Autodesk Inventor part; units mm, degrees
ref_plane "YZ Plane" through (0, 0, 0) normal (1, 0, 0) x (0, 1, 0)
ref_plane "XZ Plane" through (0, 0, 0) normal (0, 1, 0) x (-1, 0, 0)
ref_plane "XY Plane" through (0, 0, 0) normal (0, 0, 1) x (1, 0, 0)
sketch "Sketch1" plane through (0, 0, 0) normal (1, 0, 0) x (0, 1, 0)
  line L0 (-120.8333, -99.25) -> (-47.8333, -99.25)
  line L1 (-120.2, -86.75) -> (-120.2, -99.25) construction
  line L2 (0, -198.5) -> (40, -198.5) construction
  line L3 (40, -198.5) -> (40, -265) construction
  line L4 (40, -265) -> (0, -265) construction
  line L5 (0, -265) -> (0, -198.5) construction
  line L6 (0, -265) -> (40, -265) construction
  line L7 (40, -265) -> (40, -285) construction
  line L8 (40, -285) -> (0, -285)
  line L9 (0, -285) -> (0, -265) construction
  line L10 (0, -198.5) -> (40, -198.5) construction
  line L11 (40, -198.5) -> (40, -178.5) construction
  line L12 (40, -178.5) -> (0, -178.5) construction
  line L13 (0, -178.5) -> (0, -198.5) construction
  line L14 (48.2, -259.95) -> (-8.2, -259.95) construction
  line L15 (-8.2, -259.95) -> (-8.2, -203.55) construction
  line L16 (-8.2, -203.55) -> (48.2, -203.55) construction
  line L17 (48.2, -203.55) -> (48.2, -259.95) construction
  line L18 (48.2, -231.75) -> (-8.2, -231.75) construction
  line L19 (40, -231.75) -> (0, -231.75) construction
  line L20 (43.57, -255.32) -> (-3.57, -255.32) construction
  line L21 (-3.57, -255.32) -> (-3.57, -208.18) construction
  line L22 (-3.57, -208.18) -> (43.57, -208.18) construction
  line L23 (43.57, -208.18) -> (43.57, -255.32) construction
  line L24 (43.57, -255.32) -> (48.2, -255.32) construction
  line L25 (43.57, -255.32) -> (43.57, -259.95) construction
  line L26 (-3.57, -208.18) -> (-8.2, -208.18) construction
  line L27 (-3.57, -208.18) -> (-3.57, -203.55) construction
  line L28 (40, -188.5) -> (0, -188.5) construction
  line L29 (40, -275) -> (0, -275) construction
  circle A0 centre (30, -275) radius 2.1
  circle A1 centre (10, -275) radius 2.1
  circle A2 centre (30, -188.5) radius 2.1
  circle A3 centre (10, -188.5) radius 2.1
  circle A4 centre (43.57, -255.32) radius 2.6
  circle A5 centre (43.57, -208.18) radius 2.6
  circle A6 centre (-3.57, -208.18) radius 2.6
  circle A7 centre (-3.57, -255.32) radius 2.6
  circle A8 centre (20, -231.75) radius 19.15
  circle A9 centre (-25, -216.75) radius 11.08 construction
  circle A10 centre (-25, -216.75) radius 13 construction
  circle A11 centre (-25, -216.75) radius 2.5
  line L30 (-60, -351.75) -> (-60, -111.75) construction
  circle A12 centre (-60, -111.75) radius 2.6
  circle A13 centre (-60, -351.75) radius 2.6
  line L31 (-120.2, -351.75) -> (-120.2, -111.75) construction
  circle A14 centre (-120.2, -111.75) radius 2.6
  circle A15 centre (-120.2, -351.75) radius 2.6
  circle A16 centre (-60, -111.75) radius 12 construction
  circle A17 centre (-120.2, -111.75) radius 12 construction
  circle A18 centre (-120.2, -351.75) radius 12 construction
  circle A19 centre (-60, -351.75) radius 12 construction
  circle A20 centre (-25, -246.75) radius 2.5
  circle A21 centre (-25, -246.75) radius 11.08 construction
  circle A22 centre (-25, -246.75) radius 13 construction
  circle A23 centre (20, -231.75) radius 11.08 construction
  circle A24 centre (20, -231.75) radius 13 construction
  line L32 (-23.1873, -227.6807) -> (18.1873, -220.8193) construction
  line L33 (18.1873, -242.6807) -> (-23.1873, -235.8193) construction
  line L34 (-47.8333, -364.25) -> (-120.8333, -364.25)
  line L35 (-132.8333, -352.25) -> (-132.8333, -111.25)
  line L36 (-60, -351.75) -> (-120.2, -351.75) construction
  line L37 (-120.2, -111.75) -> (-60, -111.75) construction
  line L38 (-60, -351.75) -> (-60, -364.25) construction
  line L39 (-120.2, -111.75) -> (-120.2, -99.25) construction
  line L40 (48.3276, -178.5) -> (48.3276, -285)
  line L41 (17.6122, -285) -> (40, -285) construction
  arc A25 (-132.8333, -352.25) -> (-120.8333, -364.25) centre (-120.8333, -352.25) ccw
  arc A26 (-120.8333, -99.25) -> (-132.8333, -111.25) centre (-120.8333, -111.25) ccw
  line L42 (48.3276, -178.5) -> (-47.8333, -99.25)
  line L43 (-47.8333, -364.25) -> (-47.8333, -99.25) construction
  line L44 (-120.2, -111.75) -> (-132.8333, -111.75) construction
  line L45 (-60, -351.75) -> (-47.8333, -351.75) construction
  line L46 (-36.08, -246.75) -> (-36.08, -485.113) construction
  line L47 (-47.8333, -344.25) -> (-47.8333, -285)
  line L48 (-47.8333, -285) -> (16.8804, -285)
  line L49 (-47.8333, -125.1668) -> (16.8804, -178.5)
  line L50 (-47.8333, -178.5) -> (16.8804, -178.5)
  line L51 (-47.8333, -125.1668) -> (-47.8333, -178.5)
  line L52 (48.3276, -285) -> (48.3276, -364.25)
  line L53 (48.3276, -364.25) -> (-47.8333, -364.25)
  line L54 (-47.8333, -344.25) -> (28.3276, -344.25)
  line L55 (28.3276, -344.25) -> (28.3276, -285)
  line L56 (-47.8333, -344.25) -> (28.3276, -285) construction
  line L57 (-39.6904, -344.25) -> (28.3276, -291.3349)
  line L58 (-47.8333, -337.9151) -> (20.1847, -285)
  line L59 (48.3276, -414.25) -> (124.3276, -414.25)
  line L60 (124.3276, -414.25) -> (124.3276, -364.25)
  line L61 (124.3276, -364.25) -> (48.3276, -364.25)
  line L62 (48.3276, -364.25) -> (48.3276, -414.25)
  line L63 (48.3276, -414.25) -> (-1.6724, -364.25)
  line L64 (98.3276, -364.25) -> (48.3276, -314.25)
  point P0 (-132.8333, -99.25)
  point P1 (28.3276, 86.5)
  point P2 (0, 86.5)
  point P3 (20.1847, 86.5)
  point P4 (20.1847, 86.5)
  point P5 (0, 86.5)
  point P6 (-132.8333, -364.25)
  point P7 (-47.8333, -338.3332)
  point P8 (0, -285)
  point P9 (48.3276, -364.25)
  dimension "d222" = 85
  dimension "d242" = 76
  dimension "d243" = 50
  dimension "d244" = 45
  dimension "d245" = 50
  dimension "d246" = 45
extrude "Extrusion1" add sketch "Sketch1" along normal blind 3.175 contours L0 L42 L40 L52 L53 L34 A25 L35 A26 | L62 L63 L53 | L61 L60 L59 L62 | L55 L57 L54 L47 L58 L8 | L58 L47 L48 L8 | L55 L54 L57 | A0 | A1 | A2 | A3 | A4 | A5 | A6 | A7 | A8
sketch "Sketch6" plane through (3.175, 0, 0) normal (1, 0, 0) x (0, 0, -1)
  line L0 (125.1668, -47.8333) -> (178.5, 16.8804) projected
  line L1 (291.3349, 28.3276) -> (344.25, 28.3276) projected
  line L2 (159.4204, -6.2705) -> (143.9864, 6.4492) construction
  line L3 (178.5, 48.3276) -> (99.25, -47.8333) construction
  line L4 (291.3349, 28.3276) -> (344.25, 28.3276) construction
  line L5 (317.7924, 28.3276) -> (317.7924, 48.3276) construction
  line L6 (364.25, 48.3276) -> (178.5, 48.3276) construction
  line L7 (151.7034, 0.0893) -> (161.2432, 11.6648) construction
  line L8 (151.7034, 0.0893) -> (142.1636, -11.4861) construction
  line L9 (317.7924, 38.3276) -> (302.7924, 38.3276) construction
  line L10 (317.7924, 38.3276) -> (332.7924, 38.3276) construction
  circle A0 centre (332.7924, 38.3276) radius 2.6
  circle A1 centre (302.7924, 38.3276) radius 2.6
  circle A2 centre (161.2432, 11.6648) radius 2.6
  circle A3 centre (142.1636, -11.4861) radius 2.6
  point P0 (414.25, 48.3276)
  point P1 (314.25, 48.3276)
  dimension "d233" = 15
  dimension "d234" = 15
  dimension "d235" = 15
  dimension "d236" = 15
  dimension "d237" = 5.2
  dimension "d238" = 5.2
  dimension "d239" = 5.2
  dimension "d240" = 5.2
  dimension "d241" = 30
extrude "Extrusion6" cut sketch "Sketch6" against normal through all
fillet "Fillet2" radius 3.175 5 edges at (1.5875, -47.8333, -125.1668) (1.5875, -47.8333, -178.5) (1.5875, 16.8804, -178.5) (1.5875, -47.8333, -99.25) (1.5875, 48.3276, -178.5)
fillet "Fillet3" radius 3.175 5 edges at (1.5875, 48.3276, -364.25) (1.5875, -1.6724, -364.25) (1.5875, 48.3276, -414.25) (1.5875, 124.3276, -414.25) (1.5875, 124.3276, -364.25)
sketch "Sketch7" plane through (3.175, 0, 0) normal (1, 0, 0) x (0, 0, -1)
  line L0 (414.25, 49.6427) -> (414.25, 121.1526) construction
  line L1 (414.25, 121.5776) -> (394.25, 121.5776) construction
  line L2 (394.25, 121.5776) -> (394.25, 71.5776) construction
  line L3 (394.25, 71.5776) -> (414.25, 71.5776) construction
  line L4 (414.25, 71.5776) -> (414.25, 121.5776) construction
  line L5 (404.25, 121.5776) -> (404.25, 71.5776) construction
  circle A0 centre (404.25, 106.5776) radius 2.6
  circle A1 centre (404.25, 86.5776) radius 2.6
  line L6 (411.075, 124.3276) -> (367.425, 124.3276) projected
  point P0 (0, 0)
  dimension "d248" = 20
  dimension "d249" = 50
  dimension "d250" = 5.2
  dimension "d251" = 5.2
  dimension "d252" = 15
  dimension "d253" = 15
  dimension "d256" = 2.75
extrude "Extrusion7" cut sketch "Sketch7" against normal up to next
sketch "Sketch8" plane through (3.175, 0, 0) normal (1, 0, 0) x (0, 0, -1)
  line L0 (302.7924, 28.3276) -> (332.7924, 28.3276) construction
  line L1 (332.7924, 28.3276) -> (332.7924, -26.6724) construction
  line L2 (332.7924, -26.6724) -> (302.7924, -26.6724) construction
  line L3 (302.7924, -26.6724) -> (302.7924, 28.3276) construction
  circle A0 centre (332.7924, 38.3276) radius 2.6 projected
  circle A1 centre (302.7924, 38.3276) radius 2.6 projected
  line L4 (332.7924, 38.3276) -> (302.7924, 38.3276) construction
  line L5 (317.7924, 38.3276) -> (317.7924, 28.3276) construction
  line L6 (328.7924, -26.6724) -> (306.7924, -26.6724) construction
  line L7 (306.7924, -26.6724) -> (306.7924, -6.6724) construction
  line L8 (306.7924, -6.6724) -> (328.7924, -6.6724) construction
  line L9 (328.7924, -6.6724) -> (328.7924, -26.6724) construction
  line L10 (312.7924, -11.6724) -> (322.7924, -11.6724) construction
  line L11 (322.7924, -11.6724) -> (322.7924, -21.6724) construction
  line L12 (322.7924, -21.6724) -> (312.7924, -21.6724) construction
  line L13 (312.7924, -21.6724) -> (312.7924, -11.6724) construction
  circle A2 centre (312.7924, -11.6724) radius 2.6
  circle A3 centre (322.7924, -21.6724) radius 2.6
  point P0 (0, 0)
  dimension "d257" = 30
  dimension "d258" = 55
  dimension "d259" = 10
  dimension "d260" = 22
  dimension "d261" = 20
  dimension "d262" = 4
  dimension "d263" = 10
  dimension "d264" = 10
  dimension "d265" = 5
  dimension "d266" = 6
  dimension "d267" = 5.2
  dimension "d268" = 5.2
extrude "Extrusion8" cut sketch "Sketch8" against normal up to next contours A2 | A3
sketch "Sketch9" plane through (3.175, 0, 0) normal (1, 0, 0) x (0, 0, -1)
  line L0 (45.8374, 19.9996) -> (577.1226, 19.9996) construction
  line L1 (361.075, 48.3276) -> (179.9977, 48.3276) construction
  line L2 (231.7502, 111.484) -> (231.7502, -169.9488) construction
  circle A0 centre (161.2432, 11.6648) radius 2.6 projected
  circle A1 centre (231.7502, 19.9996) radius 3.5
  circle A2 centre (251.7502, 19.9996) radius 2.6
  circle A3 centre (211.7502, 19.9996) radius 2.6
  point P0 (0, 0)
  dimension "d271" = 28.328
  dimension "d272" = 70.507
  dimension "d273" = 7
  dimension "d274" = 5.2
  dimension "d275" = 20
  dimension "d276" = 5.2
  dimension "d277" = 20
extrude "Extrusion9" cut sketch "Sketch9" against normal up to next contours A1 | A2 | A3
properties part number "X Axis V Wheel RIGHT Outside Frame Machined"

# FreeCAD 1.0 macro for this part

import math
import FreeCAD as App
import Part
import Sketcher

V = App.Vector
Q = App.Units.Quantity


def edges_at(feature, points):
    """Names of the edges that pass closest to the given points."""
    edges = feature.Shape.Edges
    near = lambda p: min(range(len(edges)), key=lambda i: edges[i].distToShape(Part.Vertex(*p))[0])
    return sorted({f"Edge{near(p) + 1}" for p in points})

doc = App.newDocument("Part")
params = doc.addObject("Spreadsheet::Sheet", "Params")
for row, (alias, value) in enumerate([
    ("sketch1_width", "76 mm"),
    ("sketch1_height", "50 mm"),
    ("sketch1_diameter", "5 mm"),
    ("sketch1_radius", "12 mm"),
    ("sketch1_diameter2", "5.2 mm"),
    ("pad1_length", "3.175 mm"),
    ("sketch2_diameter", "5.2 mm"),
    ("fillet_radius", "3.175 mm"),
    ("fillet2_radius", "3.175 mm"),
    ("sketch3_diameter", "5.2 mm"),
    ("sketch4_diameter", "5.2 mm"),
    ("sketch5_diameter", "7 mm"),
    ("sketch5_diameter2", "5.2 mm"),
], start=1):
    params.set(f"A{row}", alias)
    params.set(f"B{row}", "=" + value)
    params.setAlias(f"B{row}", alias)

body = doc.addObject("PartDesign::Body", "Body")

# Sketch on YZ plane
sketch1 = body.newObject("Sketcher::SketchObject", "Sketch")
sketch1.AttachmentSupport = (doc.getObject("YZ_Plane"), [""])
sketch1.MapMode = "FlatFace"
sketch1.addGeometry(Part.LineSegment(V(-47.8333, -99.25, 0), V(-120.8333, -99.25, 0)), False)
sketch1.addGeometry(Part.ArcOfCircle(Part.Circle(V(-120.8333, -111.25, 0), V(0, 0, 1), 12), math.radians(90), math.radians(180)), False)
sketch1.addGeometry(Part.LineSegment(V(-132.8333, -111.25, 0), V(-132.8333, -352.25, 0)), False)
sketch1.addGeometry(Part.ArcOfCircle(Part.Circle(V(-120.8333, -352.25, 0), V(0, 0, 1), 12), math.radians(180), math.radians(270)), False)
sketch1.addGeometry(Part.LineSegment(V(-120.8333, -364.25, 0), V(-1.6724, -364.25, 0)), False)
sketch1.addGeometry(Part.LineSegment(V(-1.6724, -364.25, 0), V(48.3276, -414.25, 0)), False)
sketch1.addGeometry(Part.LineSegment(V(48.3276, -414.25, 0), V(124.3276, -414.25, 0)), False)
sketch1.addGeometry(Part.LineSegment(V(124.3276, -414.25, 0), V(124.3276, -364.25, 0)), False)
sketch1.addGeometry(Part.LineSegment(V(124.3276, -364.25, 0), V(48.3276, -364.25, 0)), False)
sketch1.addGeometry(Part.LineSegment(V(48.3276, -364.25, 0), V(48.3276, -178.5, 0)), False)
sketch1.addGeometry(Part.LineSegment(V(48.3276, -178.5, 0), V(-47.8333, -99.25, 0)), False)
sketch1.addGeometry(Part.Circle(V(-120.2, -351.75, 0), V(0, 0, 1), 2.6), False)
sketch1.addGeometry(Part.Circle(V(-60, -351.75, 0), V(0, 0, 1), 2.6), False)
sketch1.addGeometry(Part.Circle(V(-25, -246.75, 0), V(0, 0, 1), 2.5), False)
sketch1.addGeometry(Part.Circle(V(-25, -216.75, 0), V(0, 0, 1), 2.5), False)
sketch1.addGeometry(Part.Circle(V(-120.2, -111.75, 0), V(0, 0, 1), 2.6), False)
sketch1.addGeometry(Part.LineSegment(V(-47.8333, -178.5, 0), V(-47.8333, -125.1668, 0)), False)
sketch1.addGeometry(Part.LineSegment(V(-47.8333, -125.1668, 0), V(16.8804, -178.5, 0)), False)
sketch1.addGeometry(Part.LineSegment(V(16.8804, -178.5, 0), V(-47.8333, -178.5, 0)), False)
sketch1.addGeometry(Part.Circle(V(-60, -111.75, 0), V(0, 0, 1), 2.6), False)
sketch1.addConstraint(Sketcher.Constraint("Tangent", 0, 2, 1, 1))
sketch1.addConstraint(Sketcher.Constraint("Tangent", 1, 2, 2, 1))
sketch1.addConstraint(Sketcher.Constraint("Tangent", 2, 2, 3, 1))
sketch1.addConstraint(Sketcher.Constraint("Tangent", 3, 2, 4, 1))
sketch1.addConstraint(Sketcher.Constraint("Coincident", 4, 2, 5, 1))
sketch1.addConstraint(Sketcher.Constraint("Coincident", 5, 2, 6, 1))
sketch1.addConstraint(Sketcher.Constraint("Coincident", 6, 2, 7, 1))
sketch1.addConstraint(Sketcher.Constraint("Coincident", 7, 2, 8, 1))
sketch1.addConstraint(Sketcher.Constraint("Coincident", 8, 2, 9, 1))
sketch1.addConstraint(Sketcher.Constraint("Coincident", 9, 2, 10, 1))
sketch1.addConstraint(Sketcher.Constraint("Coincident", 10, 2, 0, 1))
sketch1.addConstraint(Sketcher.Constraint("Coincident", 16, 2, 17, 1))
sketch1.addConstraint(Sketcher.Constraint("Coincident", 17, 2, 18, 1))
sketch1.addConstraint(Sketcher.Constraint("Coincident", 18, 2, 16, 1))
sketch1.addConstraint(Sketcher.Constraint("Horizontal", 0))
sketch1.addConstraint(Sketcher.Constraint("Vertical", 2))
sketch1.addConstraint(Sketcher.Constraint("Horizontal", 4))
sketch1.addConstraint(Sketcher.Constraint("Horizontal", 6))
sketch1.addConstraint(Sketcher.Constraint("Vertical", 7))
sketch1.addConstraint(Sketcher.Constraint("Horizontal", 8))
sketch1.addConstraint(Sketcher.Constraint("Vertical", 9))
sketch1.addConstraint(Sketcher.Constraint("Vertical", 16))
sketch1.addConstraint(Sketcher.Constraint("Horizontal", 18))
sketch1.addConstraint(Sketcher.Constraint("Equal", 1, 3))
sketch1.addConstraint(Sketcher.Constraint("Equal", 11, 12))
sketch1.addConstraint(Sketcher.Constraint("Equal", 13, 14))
sketch1.addConstraint(Sketcher.Constraint("Equal", 12, 15))
sketch1.addConstraint(Sketcher.Constraint("Equal", 15, 19))
sketch1.addConstraint(Sketcher.Constraint("Parallel", 10, 17))
sketch1.addConstraint(Sketcher.Constraint("Horizontal", 11, 3, 12, 3))
sketch1.addConstraint(Sketcher.Constraint("Horizontal", 15, 3, 19, 3))
sketch1.addConstraint(Sketcher.Constraint("Horizontal", 4, 2, 7, 2))
sketch1.addConstraint(Sketcher.Constraint("Horizontal", 9, 2, 17, 2))
sketch1.addConstraint(Sketcher.Constraint("Vertical", 13, 3, 14, 3))
sketch1.addConstraint(Sketcher.Constraint("Vertical", 11, 3, 15, 3))
sketch1.addConstraint(Sketcher.Constraint("Vertical", 12, 3, 19, 3))
sketch1.addConstraint(Sketcher.Constraint("Vertical", 5, 2, 8, 2))
sketch1.addConstraint(Sketcher.Constraint("Vertical", 10, 2, 16, 2))
sketch1.addConstraint(Sketcher.Constraint("DistanceX", 6, 1, 6, 2, 76.0))
sketch1.addConstraint(Sketcher.Constraint("DistanceY", 7, 1, 7, 2, 50.0))
sketch1.addConstraint(Sketcher.Constraint("Angle", 5, Q("-45 deg")))
sketch1.addConstraint(Sketcher.Constraint("Diameter", 13, 5.0))
sketch1.addConstraint(Sketcher.Constraint("Radius", 1, 12.0))
sketch1.addConstraint(Sketcher.Constraint("DistanceX", 1, 2, 10, 2, 85.0))
sketch1.addConstraint(Sketcher.Constraint("Diameter", 11, 5.2))
sketch1.addConstraint(Sketcher.Constraint("DistanceY", 2, 2, 2, 1, 241.0))
sketch1.addConstraint(Sketcher.Constraint("DistanceX", 12, 3, -1, 1, 60.0))
sketch1.addConstraint(Sketcher.Constraint("DistanceX", 13, 3, -1, 1, 25.0))
sketch1.addConstraint(Sketcher.Constraint("DistanceY", 12, 3, 13, 3, 105.0))
sketch1.addConstraint(Sketcher.Constraint("DistanceY", 13, 3, 14, 3, 30.0))
sketch1.addConstraint(Sketcher.Constraint("DistanceY", 14, 3, 15, 3, 105.0))
sketch1.addConstraint(Sketcher.Constraint("DistanceY", 9, 1, 9, 2, 185.75))
sketch1.addConstraint(Sketcher.Constraint("DistanceX", 11, 3, -1, 1, 120.2))
sketch1.addConstraint(Sketcher.Constraint("DistanceY", 9, 2, -1, 1, 178.5))
sketch1.addConstraint(Sketcher.Constraint("DistanceY", 3, 3, 11, 3, 0.5))
sketch1.addConstraint(Sketcher.Constraint("DistanceX", 4, 1, 4, 2, 119.161))
sketch1.addConstraint(Sketcher.Constraint("DistanceX", 18, 2, 18, 1, 64.7137))
sketch1.addConstraint(Sketcher.Constraint("DistanceX", 1, 3, -1, 1, 120.8333))
sketch1.setExpression("Constraints[38]", "Params.sketch1_width")
sketch1.setExpression("Constraints[39]", "Params.sketch1_height")
sketch1.setExpression("Constraints[41]", "Params.sketch1_diameter")
sketch1.setExpression("Constraints[42]", "Params.sketch1_radius")
sketch1.setExpression("Constraints[44]", "Params.sketch1_diameter2")
pad1 = body.newObject("PartDesign::Pad", "Pad")
pad1.Profile = sketch1
pad1.setExpression("Length", "Params.pad1_length")

# Sketch on YZ plane
sketch2 = body.newObject("Sketcher::SketchObject", "Sketch001")
sketch2.AttachmentSupport = (doc.getObject("YZ_Plane"), [""])
sketch2.MapMode = "FlatFace"
sketch2.AttachmentOffset = App.Placement(V(0, 0, 3.175), App.Rotation())
sketch2.addGeometry(Part.Circle(V(38.3276, -332.7924, 0), V(0, 0, 1), 2.6), False)
sketch2.addGeometry(Part.Circle(V(38.3276, -302.7924, 0), V(0, 0, 1), 2.6), False)
sketch2.addGeometry(Part.Circle(V(11.6648, -161.2432, 0), V(0, 0, 1), 2.6), False)
sketch2.addGeometry(Part.Circle(V(-11.4861, -142.1636, 0), V(0, 0, 1), 2.6), False)
sketch2.addConstraint(Sketcher.Constraint("Equal", 0, 1))
sketch2.addConstraint(Sketcher.Constraint("Equal", 1, 2))
sketch2.addConstraint(Sketcher.Constraint("Equal", 2, 3))
sketch2.addConstraint(Sketcher.Constraint("Vertical", 0, 3, 1, 3))
sketch2.addConstraint(Sketcher.Constraint("Diameter", 0, 5.2))
sketch2.addConstraint(Sketcher.Constraint("DistanceY", 0, 3, 1, 3, 30.0))
sketch2.addConstraint(Sketcher.Constraint("DistanceX", 3, 3, -1, 1, 11.486))
sketch2.addConstraint(Sketcher.Constraint("DistanceX", 3, 3, 2, 3, 23.151))
sketch2.addConstraint(Sketcher.Constraint("DistanceX", -1, 1, 0, 3, 38.3276))
sketch2.addConstraint(Sketcher.Constraint("DistanceY", 0, 3, -1, 1, 332.7924))
sketch2.addConstraint(Sketcher.Constraint("DistanceY", 2, 3, -1, 1, 161.2432))
sketch2.addConstraint(Sketcher.Constraint("DistanceY", 3, 3, -1, 1, 142.1636))
sketch2.setExpression("Constraints[4]", "Params.sketch2_diameter")
pocket1 = body.newObject("PartDesign::Pocket", "Pocket")
pocket1.Profile = sketch2
pocket1.Type = "ThroughAll"
doc.recompute()

fillet = body.newObject("PartDesign::Fillet", "Fillet")
fillet.Base = (pocket1, edges_at(pocket1, [
    (1.587, -47.833, -125.167),
    (1.587, -47.833, -178.5),
    (1.587, 16.88, -178.5),
    (1.587, -47.833, -99.25),
    (1.587, 48.328, -178.5),
]))
fillet.setExpression("Radius", "Params.fillet_radius")
doc.recompute()

fillet2 = body.newObject("PartDesign::Fillet", "Fillet001")
fillet2.Base = (fillet, edges_at(fillet, [
    (1.587, 48.328, -364.25),
    (1.587, -1.672, -364.25),
    (1.587, 48.328, -414.25),
    (1.587, 124.328, -414.25),
    (1.587, 124.328, -364.25),
]))
fillet2.setExpression("Radius", "Params.fillet2_radius")

# Sketch on YZ plane
sketch3 = body.newObject("Sketcher::SketchObject", "Sketch002")
sketch3.AttachmentSupport = (doc.getObject("YZ_Plane"), [""])
sketch3.MapMode = "FlatFace"
sketch3.AttachmentOffset = App.Placement(V(0, 0, 3.175), App.Rotation())
sketch3.addGeometry(Part.Circle(V(106.5776, -404.25, 0), V(0, 0, 1), 2.6), False)
sketch3.addGeometry(Part.Circle(V(86.5776, -404.25, 0), V(0, 0, 1), 2.6), False)
sketch3.addConstraint(Sketcher.Constraint("Equal", 0, 1))
sketch3.addConstraint(Sketcher.Constraint("Horizontal", 0, 3, 1, 3))
sketch3.addConstraint(Sketcher.Constraint("Diameter", 0, 5.2))
sketch3.addConstraint(Sketcher.Constraint("DistanceX", 1, 3, 0, 3, 20.0))
sketch3.addConstraint(Sketcher.Constraint("DistanceY", 0, 3, -1, 1, 404.25))
sketch3.addConstraint(Sketcher.Constraint("DistanceX", -1, 1, 0, 3, 106.5776))
sketch3.setExpression("Constraints[2]", "Params.sketch3_diameter")
pocket2 = body.newObject("PartDesign::Pocket", "Pocket001")
pocket2.Profile = sketch3
pocket2.Type = "UpToFirst"

# Sketch on YZ plane
sketch4 = body.newObject("Sketcher::SketchObject", "Sketch003")
sketch4.AttachmentSupport = (doc.getObject("YZ_Plane"), [""])
sketch4.MapMode = "FlatFace"
sketch4.AttachmentOffset = App.Placement(V(0, 0, 3.175), App.Rotation())
sketch4.addGeometry(Part.Circle(V(-11.6724, -312.7924, 0), V(0, 0, 1), 2.6), False)
sketch4.addGeometry(Part.Circle(V(-21.6724, -322.7924, 0), V(0, 0, 1), 2.6), False)
sketch4.addConstraint(Sketcher.Constraint("Equal", 0, 1))
sketch4.addConstraint(Sketcher.Constraint("Diameter", 0, 5.2))
sketch4.addConstraint(Sketcher.Constraint("DistanceX", 1, 3, 0, 3, 10.0))
sketch4.addConstraint(Sketcher.Constraint("DistanceY", 1, 3, 0, 3, 10.0))
sketch4.addConstraint(Sketcher.Constraint("DistanceX", 0, 3, -1, 1, 11.6724))
sketch4.addConstraint(Sketcher.Constraint("DistanceY", 0, 3, -1, 1, 312.7924))
sketch4.setExpression("Constraints[1]", "Params.sketch4_diameter")
pocket3 = body.newObject("PartDesign::Pocket", "Pocket002")
pocket3.Profile = sketch4
pocket3.Type = "UpToFirst"

# Sketch on YZ plane
sketch5 = body.newObject("Sketcher::SketchObject", "Sketch004")
sketch5.AttachmentSupport = (doc.getObject("YZ_Plane"), [""])
sketch5.MapMode = "FlatFace"
sketch5.AttachmentOffset = App.Placement(V(0, 0, 3.175), App.Rotation())
sketch5.addGeometry(Part.Circle(V(19.9996, -231.7502, 0), V(0, 0, 1), 3.5), False)
sketch5.addGeometry(Part.Circle(V(19.9996, -251.7502, 0), V(0, 0, 1), 2.6), False)
sketch5.addGeometry(Part.Circle(V(19.9996, -211.7502, 0), V(0, 0, 1), 2.6), False)
sketch5.addConstraint(Sketcher.Constraint("Equal", 1, 2))
sketch5.addConstraint(Sketcher.Constraint("Vertical", 0, 3, 1, 3))
sketch5.addConstraint(Sketcher.Constraint("Vertical", 1, 3, 2, 3))
sketch5.addConstraint(Sketcher.Constraint("Diameter", 0, 7.0))
sketch5.addConstraint(Sketcher.Constraint("Diameter", 1, 5.2))
sketch5.addConstraint(Sketcher.Constraint("DistanceY", 1, 3, 0, 3, 20.0))
sketch5.addConstraint(Sketcher.Constraint("DistanceY", 0, 3, 2, 3, 20.0))
sketch5.addConstraint(Sketcher.Constraint("DistanceX", -1, 1, 0, 3, 19.9996))
sketch5.addConstraint(Sketcher.Constraint("DistanceY", 0, 3, -1, 1, 231.7502))
sketch5.setExpression("Constraints[3]", "Params.sketch5_diameter")
sketch5.setExpression("Constraints[4]", "Params.sketch5_diameter2")
pocket4 = body.newObject("PartDesign::Pocket", "Pocket003")
pocket4.Profile = sketch5
pocket4.Type = "UpToFirst"

doc.recompute()
